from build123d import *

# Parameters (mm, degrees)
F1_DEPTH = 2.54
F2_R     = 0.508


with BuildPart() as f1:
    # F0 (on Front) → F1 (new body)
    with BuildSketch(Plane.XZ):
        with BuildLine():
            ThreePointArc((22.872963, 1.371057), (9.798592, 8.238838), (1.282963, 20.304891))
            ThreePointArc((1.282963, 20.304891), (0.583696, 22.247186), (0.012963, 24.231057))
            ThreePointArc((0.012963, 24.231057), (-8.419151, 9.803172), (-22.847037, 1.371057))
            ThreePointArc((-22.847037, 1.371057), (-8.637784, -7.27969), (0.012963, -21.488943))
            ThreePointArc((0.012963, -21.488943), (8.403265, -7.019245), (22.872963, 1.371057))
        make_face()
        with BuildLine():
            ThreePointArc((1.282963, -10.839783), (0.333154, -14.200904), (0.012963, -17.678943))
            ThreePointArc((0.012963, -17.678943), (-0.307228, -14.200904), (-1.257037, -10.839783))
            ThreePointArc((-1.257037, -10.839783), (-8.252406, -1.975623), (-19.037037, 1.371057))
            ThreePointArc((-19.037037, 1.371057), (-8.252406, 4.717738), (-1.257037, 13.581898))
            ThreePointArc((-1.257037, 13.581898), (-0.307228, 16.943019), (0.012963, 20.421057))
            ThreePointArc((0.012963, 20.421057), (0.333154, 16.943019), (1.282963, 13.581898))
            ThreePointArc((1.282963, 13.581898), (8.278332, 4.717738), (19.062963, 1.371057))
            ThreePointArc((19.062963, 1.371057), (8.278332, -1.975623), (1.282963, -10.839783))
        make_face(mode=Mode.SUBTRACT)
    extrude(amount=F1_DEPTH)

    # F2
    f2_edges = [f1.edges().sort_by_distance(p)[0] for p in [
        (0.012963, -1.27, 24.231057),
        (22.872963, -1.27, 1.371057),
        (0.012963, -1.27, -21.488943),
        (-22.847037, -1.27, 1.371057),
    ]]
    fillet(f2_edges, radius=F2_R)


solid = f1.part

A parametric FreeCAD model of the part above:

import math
import FreeCAD as App
import Part
import Sketcher

V = App.Vector
Q = App.Units.Quantity


def edges_at(feature, points):
    """Names of the edges that pass closest to the given points."""
    edges = feature.Shape.Edges
    near = lambda p: min(range(len(edges)), key=lambda i: edges[i].distToShape(Part.Vertex(*p))[0])
    return sorted({f"Edge{near(p) + 1}" for p in points})

doc = App.newDocument("Part")
params = doc.addObject("Spreadsheet::Sheet", "Params")
for row, (alias, value) in enumerate([
    ("sketch1_radius", "0.7499999 in"),
    ("pad1_length", "0.1 in"),
    ("fillet_radius", "0.02 in"),
], start=1):
    params.set(f"A{row}", alias)
    params.set(f"B{row}", "=" + value)
    params.setAlias(f"B{row}", alias)

body = doc.addObject("PartDesign::Body", "Body")

# Sketch on XZ plane
sketch1 = body.newObject("Sketcher::SketchObject", "Sketch")
sketch1.AttachmentSupport = (doc.getObject("XZ_Plane"), [""])
sketch1.MapMode = "FlatFace"
sketch1.addGeometry(Part.ArcOfCircle(Part.Circle(V(30.597764, 31.955858, 0), V(0, 0, 1), 31.545247), math.radians(-158.324992), math.radians(-104.174745)), False)
sketch1.addGeometry(Part.ArcOfCircle(Part.Circle(V(30.597808, 31.955874, 0), V(0, 0, 1), 31.545293), math.radians(-165.825248), math.radians(-158.324994)), False)
sketch1.addGeometry(Part.ArcOfCircle(Part.Circle(V(-31.707602, 33.091622, 0), V(0, 0, 1), 32.934843), math.radians(-74.393257), math.radians(-15.606743)), False)
sketch1.addGeometry(Part.ArcOfCircle(Part.Circle(V(-33.53101, -32.172916, 0), V(0, 0, 1), 35.204338), math.radians(17.667015), math.radians(72.332985)), False)
sketch1.addGeometry(Part.ArcOfCircle(Part.Circle(V(31.412897, -30.028877, 0), V(0, 0, 1), 32.540533), math.radians(105.214886), math.radians(164.785114)), False)
sketch1.addGeometry(Part.ArcOfCircle(Part.Circle(V(19.062961, -17.678941, 0), V(0, 0, 1), 19.049998), math.radians(89.999994), math.radians(158.960533)), False)
sketch1.addGeometry(Part.ArcOfCircle(Part.Circle(V(19.06297, -17.678944, 0), V(0, 0, 1), 19.050007), math.radians(158.960534), math.radians(179.999998)), False)
sketch1.addGeometry(Part.ArcOfCircle(Part.Circle(V(-19.037044, -17.678944, 0), V(0, 0, 1), 19.050007), math.radians(0.000002), math.radians(21.039466)), False)
sketch1.addGeometry(Part.ArcOfCircle(Part.Circle(V(-19.037035, -17.678941, 0), V(0, 0, 1), 19.049998), math.radians(21.039467), math.radians(90.000006)), False)
sketch1.addGeometry(Part.ArcOfCircle(Part.Circle(V(-19.037037, 20.421057, 0), V(0, 0, 1), 19.05), math.radians(-89.999999), math.radians(-21.03947)), False)
sketch1.addGeometry(Part.ArcOfCircle(Part.Circle(V(-19.037044, 20.421059, 0), V(0, 0, 1), 19.050007), math.radians(-21.039466), math.radians(-0.000005)), False)
sketch1.addGeometry(Part.ArcOfCircle(Part.Circle(V(19.06297, 20.421059, 0), V(0, 0, 1), 19.050007), math.radians(-179.999995), math.radians(-158.960534)), False)
sketch1.addGeometry(Part.ArcOfCircle(Part.Circle(V(19.062963, 20.421057, 0), V(0, 0, 1), 19.05), math.radians(-158.96053), math.radians(-90.000001)), False)
sketch1.addConstraint(Sketcher.Constraint("Tangent", 0, 1, 1, 2))
sketch1.addConstraint(Sketcher.Constraint("Coincident", 1, 1, 2, 2))
sketch1.addConstraint(Sketcher.Constraint("Coincident", 2, 1, 3, 2))
sketch1.addConstraint(Sketcher.Constraint("Coincident", 3, 1, 4, 2))
sketch1.addConstraint(Sketcher.Constraint("Coincident", 4, 1, 0, 2))
sketch1.addConstraint(Sketcher.Constraint("Tangent", 5, 2, 6, 1))
sketch1.addConstraint(Sketcher.Constraint("Tangent", 6, 2, 7, 1))
sketch1.addConstraint(Sketcher.Constraint("Tangent", 7, 2, 8, 1))
sketch1.addConstraint(Sketcher.Constraint("Tangent", 8, 2, 9, 1))
sketch1.addConstraint(Sketcher.Constraint("Tangent", 9, 2, 10, 1))
sketch1.addConstraint(Sketcher.Constraint("Tangent", 10, 2, 11, 1))
sketch1.addConstraint(Sketcher.Constraint("Tangent", 11, 2, 12, 1))
sketch1.addConstraint(Sketcher.Constraint("Tangent", 12, 2, 5, 1))
sketch1.addConstraint(Sketcher.Constraint("Equal", 6, 7))
sketch1.addConstraint(Sketcher.Constraint("Equal", 5, 8))
sketch1.addConstraint(Sketcher.Constraint("Equal", 7, 10))
sketch1.addConstraint(Sketcher.Constraint("Equal", 10, 11))
sketch1.addConstraint(Sketcher.Constraint("Equal", 9, 12))
sketch1.addConstraint(Sketcher.Constraint("Horizontal", 6, 3, 7, 3))
sketch1.addConstraint(Sketcher.Constraint("Horizontal", 10, 3, 12, 3))
sketch1.addConstraint(Sketcher.Constraint("Horizontal", 2, 1, 4, 1))
sketch1.addConstraint(Sketcher.Constraint("Horizontal", 5, 2, 7, 2))
sketch1.addConstraint(Sketcher.Constraint("Horizontal", 4, 1, 8, 2))
sketch1.addConstraint(Sketcher.Constraint("Horizontal", 9, 2, 11, 2))
sketch1.addConstraint(Sketcher.Constraint("Vertical", 7, 3, 10, 3))
sketch1.addConstraint(Sketcher.Constraint("Vertical", 1, 1, 3, 1))
sketch1.addConstraint(Sketcher.Constraint("Vertical", 0, 1, 5, 2))
sketch1.addConstraint(Sketcher.Constraint("Vertical", 3, 1, 6, 2))
sketch1.addConstraint(Sketcher.Constraint("Vertical", 9, 3, 8, 2))
sketch1.addConstraint(Sketcher.Constraint("Vertical", 7, 2, 9, 2))
sketch1.addConstraint(Sketcher.Constraint("Radius", 5, Q("0.7499999 in")))
sketch1.addConstraint(Sketcher.Constraint("DistanceX", 0, 1, 12, 3, Q("0.7 in")))
sketch1.addConstraint(Sketcher.Constraint("DistanceX", 2, 1, 3, 1, Q("0.9 in")))
sketch1.addConstraint(Sketcher.Constraint("DistanceY", 3, 1, 2, 1, Q("0.9 in")))
sketch1.addConstraint(Sketcher.Constraint("DistanceY", 12, 3, 1, 1, Q("0.15 in")))
sketch1.addConstraint(Sketcher.Constraint("DistanceX", 5, 3, 4, 1, Q("0.1500001 in")))
sketch1.addConstraint(Sketcher.Constraint("Radius", 3, 35.204338))
sketch1.addConstraint(Sketcher.Constraint("Radius", 0, 31.545247))
sketch1.addConstraint(Sketcher.Constraint("Radius", 1, 31.545293))
sketch1.addConstraint(Sketcher.Constraint("Radius", 2, 32.934843))
sketch1.addConstraint(Sketcher.Constraint("Radius", 4, 32.540533))
sketch1.addConstraint(Sketcher.Constraint("DistanceY", -1, 1, 9, 2, 13.581898))
sketch1.addConstraint(Sketcher.Constraint("DistanceX", 3, 3, -1, 1, 33.53101))
sketch1.setExpression("Constraints[30]", "Params.sketch1_radius")
pad1 = body.newObject("PartDesign::Pad", "Pad")
pad1.Profile = sketch1
pad1.setExpression("Length", "Params.pad1_length")
doc.recompute()

fillet = body.newObject("PartDesign::Fillet", "Fillet")
fillet.Base = (pad1, edges_at(pad1, [
    (0.013, -1.27, 24.231),
    (22.873, -1.27, 1.371),
    (0.013, -1.27, -21.489),
    (-22.847, -1.27, 1.371),
]))
fillet.setExpression("Radius", "Params.fillet_radius")

doc.recompute()
